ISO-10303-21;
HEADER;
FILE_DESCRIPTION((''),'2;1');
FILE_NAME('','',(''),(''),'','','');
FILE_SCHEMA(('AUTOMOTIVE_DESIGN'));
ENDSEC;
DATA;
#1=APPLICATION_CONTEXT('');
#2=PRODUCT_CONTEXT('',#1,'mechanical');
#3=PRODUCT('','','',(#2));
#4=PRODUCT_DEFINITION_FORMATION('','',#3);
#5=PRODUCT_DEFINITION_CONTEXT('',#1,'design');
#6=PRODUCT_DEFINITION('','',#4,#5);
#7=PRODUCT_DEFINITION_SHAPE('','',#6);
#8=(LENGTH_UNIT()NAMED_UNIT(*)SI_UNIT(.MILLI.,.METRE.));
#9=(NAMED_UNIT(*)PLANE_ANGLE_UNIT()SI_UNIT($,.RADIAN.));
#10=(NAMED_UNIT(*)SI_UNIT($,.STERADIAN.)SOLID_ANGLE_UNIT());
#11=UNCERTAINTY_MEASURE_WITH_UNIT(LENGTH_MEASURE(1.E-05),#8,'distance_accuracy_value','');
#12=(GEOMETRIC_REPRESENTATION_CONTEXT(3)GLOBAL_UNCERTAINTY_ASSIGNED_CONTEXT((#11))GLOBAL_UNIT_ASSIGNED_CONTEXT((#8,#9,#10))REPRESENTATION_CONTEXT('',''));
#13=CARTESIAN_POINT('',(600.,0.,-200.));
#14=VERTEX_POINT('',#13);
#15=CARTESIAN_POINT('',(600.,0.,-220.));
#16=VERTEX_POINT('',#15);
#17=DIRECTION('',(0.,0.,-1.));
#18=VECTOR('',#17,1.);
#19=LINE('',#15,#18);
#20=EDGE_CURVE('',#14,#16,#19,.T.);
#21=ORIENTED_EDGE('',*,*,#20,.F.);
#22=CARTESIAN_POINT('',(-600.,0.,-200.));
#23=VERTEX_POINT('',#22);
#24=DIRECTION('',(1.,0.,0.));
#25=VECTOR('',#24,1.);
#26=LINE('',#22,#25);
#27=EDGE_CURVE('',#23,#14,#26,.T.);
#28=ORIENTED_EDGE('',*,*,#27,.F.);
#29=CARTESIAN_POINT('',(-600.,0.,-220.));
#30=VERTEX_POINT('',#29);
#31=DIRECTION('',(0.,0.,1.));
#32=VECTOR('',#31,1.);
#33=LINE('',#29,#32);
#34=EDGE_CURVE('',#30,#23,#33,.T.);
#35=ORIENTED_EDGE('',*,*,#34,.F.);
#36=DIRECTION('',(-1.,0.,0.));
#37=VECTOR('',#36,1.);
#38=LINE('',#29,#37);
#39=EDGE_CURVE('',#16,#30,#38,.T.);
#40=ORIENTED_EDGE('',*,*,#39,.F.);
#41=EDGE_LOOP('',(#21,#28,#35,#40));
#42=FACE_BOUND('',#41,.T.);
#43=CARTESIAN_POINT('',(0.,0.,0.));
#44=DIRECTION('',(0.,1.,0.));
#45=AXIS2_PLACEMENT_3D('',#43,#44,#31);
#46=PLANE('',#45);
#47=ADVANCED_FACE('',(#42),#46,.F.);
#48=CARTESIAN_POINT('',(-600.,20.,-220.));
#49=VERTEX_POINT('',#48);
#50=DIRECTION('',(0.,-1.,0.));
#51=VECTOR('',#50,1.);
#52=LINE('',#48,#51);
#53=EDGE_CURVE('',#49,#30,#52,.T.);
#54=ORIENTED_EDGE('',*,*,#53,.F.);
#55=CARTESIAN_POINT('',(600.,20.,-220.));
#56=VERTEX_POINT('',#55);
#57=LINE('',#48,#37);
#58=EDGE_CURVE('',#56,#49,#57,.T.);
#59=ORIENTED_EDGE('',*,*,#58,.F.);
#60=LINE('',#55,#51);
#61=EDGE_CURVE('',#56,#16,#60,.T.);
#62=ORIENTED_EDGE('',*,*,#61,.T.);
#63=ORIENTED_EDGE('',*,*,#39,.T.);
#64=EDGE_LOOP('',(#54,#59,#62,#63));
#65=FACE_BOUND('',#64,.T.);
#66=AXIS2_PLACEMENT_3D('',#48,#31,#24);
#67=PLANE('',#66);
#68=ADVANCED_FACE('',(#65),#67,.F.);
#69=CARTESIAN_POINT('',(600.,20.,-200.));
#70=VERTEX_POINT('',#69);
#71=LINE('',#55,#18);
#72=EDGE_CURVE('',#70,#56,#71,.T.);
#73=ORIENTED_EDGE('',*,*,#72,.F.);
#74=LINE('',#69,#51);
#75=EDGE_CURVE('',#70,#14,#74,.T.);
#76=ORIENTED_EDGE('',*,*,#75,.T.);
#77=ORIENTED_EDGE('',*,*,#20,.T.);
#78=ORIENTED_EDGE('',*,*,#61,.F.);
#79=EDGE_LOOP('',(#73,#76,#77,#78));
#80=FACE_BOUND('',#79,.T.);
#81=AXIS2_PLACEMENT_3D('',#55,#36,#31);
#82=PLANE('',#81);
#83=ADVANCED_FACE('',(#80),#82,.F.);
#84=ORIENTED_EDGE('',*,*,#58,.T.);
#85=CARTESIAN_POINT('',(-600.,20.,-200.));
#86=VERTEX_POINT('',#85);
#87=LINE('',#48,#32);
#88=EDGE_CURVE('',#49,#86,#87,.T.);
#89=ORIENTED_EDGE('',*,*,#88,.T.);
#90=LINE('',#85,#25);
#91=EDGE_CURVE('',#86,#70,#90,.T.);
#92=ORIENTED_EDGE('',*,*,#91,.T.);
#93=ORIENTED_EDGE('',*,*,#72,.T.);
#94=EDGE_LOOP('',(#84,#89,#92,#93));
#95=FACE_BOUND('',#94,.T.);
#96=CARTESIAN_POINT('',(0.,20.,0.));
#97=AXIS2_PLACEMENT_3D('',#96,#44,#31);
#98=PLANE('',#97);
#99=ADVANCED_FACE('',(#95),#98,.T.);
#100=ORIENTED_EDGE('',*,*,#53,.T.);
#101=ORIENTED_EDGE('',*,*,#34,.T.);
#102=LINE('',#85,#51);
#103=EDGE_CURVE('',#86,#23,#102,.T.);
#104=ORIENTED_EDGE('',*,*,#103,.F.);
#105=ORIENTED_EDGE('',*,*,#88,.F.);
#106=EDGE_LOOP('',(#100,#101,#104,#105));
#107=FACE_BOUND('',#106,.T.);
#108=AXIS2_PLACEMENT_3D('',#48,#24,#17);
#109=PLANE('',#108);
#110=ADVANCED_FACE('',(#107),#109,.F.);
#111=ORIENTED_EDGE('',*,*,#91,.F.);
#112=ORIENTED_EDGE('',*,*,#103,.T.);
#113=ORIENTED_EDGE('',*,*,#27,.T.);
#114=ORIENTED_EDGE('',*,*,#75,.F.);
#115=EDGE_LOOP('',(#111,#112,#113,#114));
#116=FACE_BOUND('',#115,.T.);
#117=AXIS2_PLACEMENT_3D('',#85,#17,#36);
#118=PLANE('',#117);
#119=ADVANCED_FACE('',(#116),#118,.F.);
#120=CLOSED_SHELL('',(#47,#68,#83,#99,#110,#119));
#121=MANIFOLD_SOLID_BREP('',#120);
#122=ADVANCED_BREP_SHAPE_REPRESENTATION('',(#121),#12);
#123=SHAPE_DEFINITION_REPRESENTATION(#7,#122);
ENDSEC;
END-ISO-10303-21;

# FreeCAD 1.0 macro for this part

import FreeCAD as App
import Part
import Sketcher
Q = App.Units.Quantity

doc = App.newDocument("Part")
body = doc.addObject("PartDesign::Body", "Body")

# Sketch on XZ plane
sketch1 = body.newObject("Sketcher::SketchObject", "Sketch")
sketch1.AttachmentSupport = (doc.getObject("XZ_Plane"), [""])
sketch1.MapMode = "FlatFace"
sketch1.addGeometry(Part.LineSegment(App.Vector(-600, -220, 0), App.Vector(-600, -200, 0)), False)
sketch1.addGeometry(Part.LineSegment(App.Vector(-600, -200, 0), App.Vector(600, -200, 0)), False)
sketch1.addGeometry(Part.LineSegment(App.Vector(600, -200, 0), App.Vector(600, -220, 0)), False)
sketch1.addGeometry(Part.LineSegment(App.Vector(600, -220, 0), App.Vector(-600, -220, 0)), False)
sketch1.addConstraint(Sketcher.Constraint("Coincident", 0, 2, 1, 1))
sketch1.addConstraint(Sketcher.Constraint("Coincident", 1, 2, 2, 1))
sketch1.addConstraint(Sketcher.Constraint("Coincident", 2, 2, 3, 1))
sketch1.addConstraint(Sketcher.Constraint("Coincident", 3, 2, 0, 1))
sketch1.addConstraint(Sketcher.Constraint("Vertical", 0))
sketch1.addConstraint(Sketcher.Constraint("Horizontal", 1))
sketch1.addConstraint(Sketcher.Constraint("Vertical", 2))
sketch1.addConstraint(Sketcher.Constraint("Horizontal", 3))
sketch1.addConstraint(Sketcher.Constraint("DistanceX", 1, 1, 1, 2, Q("1200 mm")))
sketch1.addConstraint(Sketcher.Constraint("DistanceY", 0, 1, 0, 2, Q("20 mm")))
sketch1.addConstraint(Sketcher.Constraint("DistanceX", 0, 2, -1, 1, Q("600 mm")))
sketch1.addConstraint(Sketcher.Constraint("DistanceY", 0, 2, -1, 1, Q("200 mm")))
pad1 = body.newObject("PartDesign::Pad", "Pad")
pad1.Profile = sketch1
pad1.Length = 20
pad1.Reversed = True

doc.recompute()
